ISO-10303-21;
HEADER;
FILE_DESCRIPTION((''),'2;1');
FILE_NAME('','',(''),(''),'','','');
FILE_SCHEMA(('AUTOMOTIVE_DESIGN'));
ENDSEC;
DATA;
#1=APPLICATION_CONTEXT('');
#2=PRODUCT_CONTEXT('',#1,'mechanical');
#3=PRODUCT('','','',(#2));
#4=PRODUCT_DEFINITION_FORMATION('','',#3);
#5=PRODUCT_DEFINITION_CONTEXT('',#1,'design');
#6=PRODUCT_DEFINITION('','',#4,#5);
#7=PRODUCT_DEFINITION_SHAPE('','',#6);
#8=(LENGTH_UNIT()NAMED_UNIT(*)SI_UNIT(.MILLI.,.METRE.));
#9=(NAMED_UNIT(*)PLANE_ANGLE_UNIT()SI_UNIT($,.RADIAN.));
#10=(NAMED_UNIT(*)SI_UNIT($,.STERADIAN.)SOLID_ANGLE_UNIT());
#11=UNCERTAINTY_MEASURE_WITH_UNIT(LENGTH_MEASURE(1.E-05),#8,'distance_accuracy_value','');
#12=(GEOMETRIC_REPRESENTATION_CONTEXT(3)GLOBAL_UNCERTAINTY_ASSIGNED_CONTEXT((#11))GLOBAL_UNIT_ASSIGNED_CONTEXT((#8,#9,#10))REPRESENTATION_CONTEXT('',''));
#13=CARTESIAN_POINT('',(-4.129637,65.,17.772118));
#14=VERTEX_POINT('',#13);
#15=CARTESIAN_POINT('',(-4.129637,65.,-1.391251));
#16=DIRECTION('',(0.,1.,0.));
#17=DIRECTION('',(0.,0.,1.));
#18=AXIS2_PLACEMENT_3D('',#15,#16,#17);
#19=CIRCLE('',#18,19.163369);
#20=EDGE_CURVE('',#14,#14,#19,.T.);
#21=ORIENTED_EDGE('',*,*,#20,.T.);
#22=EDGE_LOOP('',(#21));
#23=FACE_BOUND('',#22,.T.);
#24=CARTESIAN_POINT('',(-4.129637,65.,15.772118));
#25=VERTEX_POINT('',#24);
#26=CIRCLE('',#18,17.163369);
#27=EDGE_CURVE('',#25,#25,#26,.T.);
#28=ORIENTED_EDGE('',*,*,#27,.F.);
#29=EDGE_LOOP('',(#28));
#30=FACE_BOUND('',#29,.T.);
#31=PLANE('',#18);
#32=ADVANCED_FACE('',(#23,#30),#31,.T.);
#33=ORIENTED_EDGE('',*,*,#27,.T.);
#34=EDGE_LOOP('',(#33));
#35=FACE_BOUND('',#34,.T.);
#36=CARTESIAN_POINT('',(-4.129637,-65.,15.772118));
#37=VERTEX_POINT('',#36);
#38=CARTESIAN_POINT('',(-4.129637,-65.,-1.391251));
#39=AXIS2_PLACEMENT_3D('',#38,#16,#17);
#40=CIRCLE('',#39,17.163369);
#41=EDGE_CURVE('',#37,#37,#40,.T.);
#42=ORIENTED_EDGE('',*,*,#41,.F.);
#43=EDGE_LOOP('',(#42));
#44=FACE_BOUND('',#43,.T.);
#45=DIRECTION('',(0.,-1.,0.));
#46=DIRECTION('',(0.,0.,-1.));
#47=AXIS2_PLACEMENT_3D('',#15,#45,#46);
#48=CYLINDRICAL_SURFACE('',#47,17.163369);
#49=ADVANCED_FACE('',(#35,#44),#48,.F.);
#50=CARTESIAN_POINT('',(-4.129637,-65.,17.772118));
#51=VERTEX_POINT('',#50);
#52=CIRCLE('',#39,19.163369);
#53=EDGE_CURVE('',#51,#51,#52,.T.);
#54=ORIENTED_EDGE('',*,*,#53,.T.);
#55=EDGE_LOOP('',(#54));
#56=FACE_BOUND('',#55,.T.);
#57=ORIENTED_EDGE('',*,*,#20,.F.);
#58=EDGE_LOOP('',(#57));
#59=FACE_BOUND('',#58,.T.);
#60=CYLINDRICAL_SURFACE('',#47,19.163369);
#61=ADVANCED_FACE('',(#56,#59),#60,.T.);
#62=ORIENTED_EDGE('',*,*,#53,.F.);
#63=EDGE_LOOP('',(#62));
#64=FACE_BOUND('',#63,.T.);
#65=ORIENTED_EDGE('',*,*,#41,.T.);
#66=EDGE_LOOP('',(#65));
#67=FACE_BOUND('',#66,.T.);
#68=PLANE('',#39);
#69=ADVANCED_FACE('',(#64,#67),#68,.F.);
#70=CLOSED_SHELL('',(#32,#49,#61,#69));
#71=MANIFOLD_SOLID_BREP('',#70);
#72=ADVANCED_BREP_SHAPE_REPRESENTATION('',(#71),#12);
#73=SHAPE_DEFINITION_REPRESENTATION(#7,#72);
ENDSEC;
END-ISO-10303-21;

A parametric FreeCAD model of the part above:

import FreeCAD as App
import Part
import Sketcher

V = App.Vector
Q = App.Units.Quantity

doc = App.newDocument("Part")
body = doc.addObject("PartDesign::Body", "Body")

# Sketch on XZ plane
sketch1 = body.newObject("Sketcher::SketchObject", "Sketch")
sketch1.AttachmentSupport = (doc.getObject("XZ_Plane"), [""])
sketch1.MapMode = "FlatFace"
sketch1.addGeometry(Part.Circle(V(-4, -1, 0), V(0, 0, 1), 19), False)
sketch1.addGeometry(Part.Circle(V(-4, -1, 0), V(0, 0, 1), 17), False)
sketch1.addConstraint(Sketcher.Constraint("Coincident", 1, 3, 0, 3))
sketch1.addConstraint(Sketcher.Constraint("Diameter", 0, Q("38.326739 mm")))
sketch1.addConstraint(Sketcher.Constraint("Diameter", 1, Q("34.326739 mm")))
sketch1.addConstraint(Sketcher.Constraint("DistanceY", 0, 3, -1, 1, Q("1.391251 mm")))
sketch1.addConstraint(Sketcher.Constraint("DistanceX", 0, 3, -1, 1, Q("4.129637 mm")))
pad1 = body.newObject("PartDesign::Pad", "Pad")
pad1.Profile = sketch1
pad1.Length = 130
pad1.Midplane = True

doc.recompute()
